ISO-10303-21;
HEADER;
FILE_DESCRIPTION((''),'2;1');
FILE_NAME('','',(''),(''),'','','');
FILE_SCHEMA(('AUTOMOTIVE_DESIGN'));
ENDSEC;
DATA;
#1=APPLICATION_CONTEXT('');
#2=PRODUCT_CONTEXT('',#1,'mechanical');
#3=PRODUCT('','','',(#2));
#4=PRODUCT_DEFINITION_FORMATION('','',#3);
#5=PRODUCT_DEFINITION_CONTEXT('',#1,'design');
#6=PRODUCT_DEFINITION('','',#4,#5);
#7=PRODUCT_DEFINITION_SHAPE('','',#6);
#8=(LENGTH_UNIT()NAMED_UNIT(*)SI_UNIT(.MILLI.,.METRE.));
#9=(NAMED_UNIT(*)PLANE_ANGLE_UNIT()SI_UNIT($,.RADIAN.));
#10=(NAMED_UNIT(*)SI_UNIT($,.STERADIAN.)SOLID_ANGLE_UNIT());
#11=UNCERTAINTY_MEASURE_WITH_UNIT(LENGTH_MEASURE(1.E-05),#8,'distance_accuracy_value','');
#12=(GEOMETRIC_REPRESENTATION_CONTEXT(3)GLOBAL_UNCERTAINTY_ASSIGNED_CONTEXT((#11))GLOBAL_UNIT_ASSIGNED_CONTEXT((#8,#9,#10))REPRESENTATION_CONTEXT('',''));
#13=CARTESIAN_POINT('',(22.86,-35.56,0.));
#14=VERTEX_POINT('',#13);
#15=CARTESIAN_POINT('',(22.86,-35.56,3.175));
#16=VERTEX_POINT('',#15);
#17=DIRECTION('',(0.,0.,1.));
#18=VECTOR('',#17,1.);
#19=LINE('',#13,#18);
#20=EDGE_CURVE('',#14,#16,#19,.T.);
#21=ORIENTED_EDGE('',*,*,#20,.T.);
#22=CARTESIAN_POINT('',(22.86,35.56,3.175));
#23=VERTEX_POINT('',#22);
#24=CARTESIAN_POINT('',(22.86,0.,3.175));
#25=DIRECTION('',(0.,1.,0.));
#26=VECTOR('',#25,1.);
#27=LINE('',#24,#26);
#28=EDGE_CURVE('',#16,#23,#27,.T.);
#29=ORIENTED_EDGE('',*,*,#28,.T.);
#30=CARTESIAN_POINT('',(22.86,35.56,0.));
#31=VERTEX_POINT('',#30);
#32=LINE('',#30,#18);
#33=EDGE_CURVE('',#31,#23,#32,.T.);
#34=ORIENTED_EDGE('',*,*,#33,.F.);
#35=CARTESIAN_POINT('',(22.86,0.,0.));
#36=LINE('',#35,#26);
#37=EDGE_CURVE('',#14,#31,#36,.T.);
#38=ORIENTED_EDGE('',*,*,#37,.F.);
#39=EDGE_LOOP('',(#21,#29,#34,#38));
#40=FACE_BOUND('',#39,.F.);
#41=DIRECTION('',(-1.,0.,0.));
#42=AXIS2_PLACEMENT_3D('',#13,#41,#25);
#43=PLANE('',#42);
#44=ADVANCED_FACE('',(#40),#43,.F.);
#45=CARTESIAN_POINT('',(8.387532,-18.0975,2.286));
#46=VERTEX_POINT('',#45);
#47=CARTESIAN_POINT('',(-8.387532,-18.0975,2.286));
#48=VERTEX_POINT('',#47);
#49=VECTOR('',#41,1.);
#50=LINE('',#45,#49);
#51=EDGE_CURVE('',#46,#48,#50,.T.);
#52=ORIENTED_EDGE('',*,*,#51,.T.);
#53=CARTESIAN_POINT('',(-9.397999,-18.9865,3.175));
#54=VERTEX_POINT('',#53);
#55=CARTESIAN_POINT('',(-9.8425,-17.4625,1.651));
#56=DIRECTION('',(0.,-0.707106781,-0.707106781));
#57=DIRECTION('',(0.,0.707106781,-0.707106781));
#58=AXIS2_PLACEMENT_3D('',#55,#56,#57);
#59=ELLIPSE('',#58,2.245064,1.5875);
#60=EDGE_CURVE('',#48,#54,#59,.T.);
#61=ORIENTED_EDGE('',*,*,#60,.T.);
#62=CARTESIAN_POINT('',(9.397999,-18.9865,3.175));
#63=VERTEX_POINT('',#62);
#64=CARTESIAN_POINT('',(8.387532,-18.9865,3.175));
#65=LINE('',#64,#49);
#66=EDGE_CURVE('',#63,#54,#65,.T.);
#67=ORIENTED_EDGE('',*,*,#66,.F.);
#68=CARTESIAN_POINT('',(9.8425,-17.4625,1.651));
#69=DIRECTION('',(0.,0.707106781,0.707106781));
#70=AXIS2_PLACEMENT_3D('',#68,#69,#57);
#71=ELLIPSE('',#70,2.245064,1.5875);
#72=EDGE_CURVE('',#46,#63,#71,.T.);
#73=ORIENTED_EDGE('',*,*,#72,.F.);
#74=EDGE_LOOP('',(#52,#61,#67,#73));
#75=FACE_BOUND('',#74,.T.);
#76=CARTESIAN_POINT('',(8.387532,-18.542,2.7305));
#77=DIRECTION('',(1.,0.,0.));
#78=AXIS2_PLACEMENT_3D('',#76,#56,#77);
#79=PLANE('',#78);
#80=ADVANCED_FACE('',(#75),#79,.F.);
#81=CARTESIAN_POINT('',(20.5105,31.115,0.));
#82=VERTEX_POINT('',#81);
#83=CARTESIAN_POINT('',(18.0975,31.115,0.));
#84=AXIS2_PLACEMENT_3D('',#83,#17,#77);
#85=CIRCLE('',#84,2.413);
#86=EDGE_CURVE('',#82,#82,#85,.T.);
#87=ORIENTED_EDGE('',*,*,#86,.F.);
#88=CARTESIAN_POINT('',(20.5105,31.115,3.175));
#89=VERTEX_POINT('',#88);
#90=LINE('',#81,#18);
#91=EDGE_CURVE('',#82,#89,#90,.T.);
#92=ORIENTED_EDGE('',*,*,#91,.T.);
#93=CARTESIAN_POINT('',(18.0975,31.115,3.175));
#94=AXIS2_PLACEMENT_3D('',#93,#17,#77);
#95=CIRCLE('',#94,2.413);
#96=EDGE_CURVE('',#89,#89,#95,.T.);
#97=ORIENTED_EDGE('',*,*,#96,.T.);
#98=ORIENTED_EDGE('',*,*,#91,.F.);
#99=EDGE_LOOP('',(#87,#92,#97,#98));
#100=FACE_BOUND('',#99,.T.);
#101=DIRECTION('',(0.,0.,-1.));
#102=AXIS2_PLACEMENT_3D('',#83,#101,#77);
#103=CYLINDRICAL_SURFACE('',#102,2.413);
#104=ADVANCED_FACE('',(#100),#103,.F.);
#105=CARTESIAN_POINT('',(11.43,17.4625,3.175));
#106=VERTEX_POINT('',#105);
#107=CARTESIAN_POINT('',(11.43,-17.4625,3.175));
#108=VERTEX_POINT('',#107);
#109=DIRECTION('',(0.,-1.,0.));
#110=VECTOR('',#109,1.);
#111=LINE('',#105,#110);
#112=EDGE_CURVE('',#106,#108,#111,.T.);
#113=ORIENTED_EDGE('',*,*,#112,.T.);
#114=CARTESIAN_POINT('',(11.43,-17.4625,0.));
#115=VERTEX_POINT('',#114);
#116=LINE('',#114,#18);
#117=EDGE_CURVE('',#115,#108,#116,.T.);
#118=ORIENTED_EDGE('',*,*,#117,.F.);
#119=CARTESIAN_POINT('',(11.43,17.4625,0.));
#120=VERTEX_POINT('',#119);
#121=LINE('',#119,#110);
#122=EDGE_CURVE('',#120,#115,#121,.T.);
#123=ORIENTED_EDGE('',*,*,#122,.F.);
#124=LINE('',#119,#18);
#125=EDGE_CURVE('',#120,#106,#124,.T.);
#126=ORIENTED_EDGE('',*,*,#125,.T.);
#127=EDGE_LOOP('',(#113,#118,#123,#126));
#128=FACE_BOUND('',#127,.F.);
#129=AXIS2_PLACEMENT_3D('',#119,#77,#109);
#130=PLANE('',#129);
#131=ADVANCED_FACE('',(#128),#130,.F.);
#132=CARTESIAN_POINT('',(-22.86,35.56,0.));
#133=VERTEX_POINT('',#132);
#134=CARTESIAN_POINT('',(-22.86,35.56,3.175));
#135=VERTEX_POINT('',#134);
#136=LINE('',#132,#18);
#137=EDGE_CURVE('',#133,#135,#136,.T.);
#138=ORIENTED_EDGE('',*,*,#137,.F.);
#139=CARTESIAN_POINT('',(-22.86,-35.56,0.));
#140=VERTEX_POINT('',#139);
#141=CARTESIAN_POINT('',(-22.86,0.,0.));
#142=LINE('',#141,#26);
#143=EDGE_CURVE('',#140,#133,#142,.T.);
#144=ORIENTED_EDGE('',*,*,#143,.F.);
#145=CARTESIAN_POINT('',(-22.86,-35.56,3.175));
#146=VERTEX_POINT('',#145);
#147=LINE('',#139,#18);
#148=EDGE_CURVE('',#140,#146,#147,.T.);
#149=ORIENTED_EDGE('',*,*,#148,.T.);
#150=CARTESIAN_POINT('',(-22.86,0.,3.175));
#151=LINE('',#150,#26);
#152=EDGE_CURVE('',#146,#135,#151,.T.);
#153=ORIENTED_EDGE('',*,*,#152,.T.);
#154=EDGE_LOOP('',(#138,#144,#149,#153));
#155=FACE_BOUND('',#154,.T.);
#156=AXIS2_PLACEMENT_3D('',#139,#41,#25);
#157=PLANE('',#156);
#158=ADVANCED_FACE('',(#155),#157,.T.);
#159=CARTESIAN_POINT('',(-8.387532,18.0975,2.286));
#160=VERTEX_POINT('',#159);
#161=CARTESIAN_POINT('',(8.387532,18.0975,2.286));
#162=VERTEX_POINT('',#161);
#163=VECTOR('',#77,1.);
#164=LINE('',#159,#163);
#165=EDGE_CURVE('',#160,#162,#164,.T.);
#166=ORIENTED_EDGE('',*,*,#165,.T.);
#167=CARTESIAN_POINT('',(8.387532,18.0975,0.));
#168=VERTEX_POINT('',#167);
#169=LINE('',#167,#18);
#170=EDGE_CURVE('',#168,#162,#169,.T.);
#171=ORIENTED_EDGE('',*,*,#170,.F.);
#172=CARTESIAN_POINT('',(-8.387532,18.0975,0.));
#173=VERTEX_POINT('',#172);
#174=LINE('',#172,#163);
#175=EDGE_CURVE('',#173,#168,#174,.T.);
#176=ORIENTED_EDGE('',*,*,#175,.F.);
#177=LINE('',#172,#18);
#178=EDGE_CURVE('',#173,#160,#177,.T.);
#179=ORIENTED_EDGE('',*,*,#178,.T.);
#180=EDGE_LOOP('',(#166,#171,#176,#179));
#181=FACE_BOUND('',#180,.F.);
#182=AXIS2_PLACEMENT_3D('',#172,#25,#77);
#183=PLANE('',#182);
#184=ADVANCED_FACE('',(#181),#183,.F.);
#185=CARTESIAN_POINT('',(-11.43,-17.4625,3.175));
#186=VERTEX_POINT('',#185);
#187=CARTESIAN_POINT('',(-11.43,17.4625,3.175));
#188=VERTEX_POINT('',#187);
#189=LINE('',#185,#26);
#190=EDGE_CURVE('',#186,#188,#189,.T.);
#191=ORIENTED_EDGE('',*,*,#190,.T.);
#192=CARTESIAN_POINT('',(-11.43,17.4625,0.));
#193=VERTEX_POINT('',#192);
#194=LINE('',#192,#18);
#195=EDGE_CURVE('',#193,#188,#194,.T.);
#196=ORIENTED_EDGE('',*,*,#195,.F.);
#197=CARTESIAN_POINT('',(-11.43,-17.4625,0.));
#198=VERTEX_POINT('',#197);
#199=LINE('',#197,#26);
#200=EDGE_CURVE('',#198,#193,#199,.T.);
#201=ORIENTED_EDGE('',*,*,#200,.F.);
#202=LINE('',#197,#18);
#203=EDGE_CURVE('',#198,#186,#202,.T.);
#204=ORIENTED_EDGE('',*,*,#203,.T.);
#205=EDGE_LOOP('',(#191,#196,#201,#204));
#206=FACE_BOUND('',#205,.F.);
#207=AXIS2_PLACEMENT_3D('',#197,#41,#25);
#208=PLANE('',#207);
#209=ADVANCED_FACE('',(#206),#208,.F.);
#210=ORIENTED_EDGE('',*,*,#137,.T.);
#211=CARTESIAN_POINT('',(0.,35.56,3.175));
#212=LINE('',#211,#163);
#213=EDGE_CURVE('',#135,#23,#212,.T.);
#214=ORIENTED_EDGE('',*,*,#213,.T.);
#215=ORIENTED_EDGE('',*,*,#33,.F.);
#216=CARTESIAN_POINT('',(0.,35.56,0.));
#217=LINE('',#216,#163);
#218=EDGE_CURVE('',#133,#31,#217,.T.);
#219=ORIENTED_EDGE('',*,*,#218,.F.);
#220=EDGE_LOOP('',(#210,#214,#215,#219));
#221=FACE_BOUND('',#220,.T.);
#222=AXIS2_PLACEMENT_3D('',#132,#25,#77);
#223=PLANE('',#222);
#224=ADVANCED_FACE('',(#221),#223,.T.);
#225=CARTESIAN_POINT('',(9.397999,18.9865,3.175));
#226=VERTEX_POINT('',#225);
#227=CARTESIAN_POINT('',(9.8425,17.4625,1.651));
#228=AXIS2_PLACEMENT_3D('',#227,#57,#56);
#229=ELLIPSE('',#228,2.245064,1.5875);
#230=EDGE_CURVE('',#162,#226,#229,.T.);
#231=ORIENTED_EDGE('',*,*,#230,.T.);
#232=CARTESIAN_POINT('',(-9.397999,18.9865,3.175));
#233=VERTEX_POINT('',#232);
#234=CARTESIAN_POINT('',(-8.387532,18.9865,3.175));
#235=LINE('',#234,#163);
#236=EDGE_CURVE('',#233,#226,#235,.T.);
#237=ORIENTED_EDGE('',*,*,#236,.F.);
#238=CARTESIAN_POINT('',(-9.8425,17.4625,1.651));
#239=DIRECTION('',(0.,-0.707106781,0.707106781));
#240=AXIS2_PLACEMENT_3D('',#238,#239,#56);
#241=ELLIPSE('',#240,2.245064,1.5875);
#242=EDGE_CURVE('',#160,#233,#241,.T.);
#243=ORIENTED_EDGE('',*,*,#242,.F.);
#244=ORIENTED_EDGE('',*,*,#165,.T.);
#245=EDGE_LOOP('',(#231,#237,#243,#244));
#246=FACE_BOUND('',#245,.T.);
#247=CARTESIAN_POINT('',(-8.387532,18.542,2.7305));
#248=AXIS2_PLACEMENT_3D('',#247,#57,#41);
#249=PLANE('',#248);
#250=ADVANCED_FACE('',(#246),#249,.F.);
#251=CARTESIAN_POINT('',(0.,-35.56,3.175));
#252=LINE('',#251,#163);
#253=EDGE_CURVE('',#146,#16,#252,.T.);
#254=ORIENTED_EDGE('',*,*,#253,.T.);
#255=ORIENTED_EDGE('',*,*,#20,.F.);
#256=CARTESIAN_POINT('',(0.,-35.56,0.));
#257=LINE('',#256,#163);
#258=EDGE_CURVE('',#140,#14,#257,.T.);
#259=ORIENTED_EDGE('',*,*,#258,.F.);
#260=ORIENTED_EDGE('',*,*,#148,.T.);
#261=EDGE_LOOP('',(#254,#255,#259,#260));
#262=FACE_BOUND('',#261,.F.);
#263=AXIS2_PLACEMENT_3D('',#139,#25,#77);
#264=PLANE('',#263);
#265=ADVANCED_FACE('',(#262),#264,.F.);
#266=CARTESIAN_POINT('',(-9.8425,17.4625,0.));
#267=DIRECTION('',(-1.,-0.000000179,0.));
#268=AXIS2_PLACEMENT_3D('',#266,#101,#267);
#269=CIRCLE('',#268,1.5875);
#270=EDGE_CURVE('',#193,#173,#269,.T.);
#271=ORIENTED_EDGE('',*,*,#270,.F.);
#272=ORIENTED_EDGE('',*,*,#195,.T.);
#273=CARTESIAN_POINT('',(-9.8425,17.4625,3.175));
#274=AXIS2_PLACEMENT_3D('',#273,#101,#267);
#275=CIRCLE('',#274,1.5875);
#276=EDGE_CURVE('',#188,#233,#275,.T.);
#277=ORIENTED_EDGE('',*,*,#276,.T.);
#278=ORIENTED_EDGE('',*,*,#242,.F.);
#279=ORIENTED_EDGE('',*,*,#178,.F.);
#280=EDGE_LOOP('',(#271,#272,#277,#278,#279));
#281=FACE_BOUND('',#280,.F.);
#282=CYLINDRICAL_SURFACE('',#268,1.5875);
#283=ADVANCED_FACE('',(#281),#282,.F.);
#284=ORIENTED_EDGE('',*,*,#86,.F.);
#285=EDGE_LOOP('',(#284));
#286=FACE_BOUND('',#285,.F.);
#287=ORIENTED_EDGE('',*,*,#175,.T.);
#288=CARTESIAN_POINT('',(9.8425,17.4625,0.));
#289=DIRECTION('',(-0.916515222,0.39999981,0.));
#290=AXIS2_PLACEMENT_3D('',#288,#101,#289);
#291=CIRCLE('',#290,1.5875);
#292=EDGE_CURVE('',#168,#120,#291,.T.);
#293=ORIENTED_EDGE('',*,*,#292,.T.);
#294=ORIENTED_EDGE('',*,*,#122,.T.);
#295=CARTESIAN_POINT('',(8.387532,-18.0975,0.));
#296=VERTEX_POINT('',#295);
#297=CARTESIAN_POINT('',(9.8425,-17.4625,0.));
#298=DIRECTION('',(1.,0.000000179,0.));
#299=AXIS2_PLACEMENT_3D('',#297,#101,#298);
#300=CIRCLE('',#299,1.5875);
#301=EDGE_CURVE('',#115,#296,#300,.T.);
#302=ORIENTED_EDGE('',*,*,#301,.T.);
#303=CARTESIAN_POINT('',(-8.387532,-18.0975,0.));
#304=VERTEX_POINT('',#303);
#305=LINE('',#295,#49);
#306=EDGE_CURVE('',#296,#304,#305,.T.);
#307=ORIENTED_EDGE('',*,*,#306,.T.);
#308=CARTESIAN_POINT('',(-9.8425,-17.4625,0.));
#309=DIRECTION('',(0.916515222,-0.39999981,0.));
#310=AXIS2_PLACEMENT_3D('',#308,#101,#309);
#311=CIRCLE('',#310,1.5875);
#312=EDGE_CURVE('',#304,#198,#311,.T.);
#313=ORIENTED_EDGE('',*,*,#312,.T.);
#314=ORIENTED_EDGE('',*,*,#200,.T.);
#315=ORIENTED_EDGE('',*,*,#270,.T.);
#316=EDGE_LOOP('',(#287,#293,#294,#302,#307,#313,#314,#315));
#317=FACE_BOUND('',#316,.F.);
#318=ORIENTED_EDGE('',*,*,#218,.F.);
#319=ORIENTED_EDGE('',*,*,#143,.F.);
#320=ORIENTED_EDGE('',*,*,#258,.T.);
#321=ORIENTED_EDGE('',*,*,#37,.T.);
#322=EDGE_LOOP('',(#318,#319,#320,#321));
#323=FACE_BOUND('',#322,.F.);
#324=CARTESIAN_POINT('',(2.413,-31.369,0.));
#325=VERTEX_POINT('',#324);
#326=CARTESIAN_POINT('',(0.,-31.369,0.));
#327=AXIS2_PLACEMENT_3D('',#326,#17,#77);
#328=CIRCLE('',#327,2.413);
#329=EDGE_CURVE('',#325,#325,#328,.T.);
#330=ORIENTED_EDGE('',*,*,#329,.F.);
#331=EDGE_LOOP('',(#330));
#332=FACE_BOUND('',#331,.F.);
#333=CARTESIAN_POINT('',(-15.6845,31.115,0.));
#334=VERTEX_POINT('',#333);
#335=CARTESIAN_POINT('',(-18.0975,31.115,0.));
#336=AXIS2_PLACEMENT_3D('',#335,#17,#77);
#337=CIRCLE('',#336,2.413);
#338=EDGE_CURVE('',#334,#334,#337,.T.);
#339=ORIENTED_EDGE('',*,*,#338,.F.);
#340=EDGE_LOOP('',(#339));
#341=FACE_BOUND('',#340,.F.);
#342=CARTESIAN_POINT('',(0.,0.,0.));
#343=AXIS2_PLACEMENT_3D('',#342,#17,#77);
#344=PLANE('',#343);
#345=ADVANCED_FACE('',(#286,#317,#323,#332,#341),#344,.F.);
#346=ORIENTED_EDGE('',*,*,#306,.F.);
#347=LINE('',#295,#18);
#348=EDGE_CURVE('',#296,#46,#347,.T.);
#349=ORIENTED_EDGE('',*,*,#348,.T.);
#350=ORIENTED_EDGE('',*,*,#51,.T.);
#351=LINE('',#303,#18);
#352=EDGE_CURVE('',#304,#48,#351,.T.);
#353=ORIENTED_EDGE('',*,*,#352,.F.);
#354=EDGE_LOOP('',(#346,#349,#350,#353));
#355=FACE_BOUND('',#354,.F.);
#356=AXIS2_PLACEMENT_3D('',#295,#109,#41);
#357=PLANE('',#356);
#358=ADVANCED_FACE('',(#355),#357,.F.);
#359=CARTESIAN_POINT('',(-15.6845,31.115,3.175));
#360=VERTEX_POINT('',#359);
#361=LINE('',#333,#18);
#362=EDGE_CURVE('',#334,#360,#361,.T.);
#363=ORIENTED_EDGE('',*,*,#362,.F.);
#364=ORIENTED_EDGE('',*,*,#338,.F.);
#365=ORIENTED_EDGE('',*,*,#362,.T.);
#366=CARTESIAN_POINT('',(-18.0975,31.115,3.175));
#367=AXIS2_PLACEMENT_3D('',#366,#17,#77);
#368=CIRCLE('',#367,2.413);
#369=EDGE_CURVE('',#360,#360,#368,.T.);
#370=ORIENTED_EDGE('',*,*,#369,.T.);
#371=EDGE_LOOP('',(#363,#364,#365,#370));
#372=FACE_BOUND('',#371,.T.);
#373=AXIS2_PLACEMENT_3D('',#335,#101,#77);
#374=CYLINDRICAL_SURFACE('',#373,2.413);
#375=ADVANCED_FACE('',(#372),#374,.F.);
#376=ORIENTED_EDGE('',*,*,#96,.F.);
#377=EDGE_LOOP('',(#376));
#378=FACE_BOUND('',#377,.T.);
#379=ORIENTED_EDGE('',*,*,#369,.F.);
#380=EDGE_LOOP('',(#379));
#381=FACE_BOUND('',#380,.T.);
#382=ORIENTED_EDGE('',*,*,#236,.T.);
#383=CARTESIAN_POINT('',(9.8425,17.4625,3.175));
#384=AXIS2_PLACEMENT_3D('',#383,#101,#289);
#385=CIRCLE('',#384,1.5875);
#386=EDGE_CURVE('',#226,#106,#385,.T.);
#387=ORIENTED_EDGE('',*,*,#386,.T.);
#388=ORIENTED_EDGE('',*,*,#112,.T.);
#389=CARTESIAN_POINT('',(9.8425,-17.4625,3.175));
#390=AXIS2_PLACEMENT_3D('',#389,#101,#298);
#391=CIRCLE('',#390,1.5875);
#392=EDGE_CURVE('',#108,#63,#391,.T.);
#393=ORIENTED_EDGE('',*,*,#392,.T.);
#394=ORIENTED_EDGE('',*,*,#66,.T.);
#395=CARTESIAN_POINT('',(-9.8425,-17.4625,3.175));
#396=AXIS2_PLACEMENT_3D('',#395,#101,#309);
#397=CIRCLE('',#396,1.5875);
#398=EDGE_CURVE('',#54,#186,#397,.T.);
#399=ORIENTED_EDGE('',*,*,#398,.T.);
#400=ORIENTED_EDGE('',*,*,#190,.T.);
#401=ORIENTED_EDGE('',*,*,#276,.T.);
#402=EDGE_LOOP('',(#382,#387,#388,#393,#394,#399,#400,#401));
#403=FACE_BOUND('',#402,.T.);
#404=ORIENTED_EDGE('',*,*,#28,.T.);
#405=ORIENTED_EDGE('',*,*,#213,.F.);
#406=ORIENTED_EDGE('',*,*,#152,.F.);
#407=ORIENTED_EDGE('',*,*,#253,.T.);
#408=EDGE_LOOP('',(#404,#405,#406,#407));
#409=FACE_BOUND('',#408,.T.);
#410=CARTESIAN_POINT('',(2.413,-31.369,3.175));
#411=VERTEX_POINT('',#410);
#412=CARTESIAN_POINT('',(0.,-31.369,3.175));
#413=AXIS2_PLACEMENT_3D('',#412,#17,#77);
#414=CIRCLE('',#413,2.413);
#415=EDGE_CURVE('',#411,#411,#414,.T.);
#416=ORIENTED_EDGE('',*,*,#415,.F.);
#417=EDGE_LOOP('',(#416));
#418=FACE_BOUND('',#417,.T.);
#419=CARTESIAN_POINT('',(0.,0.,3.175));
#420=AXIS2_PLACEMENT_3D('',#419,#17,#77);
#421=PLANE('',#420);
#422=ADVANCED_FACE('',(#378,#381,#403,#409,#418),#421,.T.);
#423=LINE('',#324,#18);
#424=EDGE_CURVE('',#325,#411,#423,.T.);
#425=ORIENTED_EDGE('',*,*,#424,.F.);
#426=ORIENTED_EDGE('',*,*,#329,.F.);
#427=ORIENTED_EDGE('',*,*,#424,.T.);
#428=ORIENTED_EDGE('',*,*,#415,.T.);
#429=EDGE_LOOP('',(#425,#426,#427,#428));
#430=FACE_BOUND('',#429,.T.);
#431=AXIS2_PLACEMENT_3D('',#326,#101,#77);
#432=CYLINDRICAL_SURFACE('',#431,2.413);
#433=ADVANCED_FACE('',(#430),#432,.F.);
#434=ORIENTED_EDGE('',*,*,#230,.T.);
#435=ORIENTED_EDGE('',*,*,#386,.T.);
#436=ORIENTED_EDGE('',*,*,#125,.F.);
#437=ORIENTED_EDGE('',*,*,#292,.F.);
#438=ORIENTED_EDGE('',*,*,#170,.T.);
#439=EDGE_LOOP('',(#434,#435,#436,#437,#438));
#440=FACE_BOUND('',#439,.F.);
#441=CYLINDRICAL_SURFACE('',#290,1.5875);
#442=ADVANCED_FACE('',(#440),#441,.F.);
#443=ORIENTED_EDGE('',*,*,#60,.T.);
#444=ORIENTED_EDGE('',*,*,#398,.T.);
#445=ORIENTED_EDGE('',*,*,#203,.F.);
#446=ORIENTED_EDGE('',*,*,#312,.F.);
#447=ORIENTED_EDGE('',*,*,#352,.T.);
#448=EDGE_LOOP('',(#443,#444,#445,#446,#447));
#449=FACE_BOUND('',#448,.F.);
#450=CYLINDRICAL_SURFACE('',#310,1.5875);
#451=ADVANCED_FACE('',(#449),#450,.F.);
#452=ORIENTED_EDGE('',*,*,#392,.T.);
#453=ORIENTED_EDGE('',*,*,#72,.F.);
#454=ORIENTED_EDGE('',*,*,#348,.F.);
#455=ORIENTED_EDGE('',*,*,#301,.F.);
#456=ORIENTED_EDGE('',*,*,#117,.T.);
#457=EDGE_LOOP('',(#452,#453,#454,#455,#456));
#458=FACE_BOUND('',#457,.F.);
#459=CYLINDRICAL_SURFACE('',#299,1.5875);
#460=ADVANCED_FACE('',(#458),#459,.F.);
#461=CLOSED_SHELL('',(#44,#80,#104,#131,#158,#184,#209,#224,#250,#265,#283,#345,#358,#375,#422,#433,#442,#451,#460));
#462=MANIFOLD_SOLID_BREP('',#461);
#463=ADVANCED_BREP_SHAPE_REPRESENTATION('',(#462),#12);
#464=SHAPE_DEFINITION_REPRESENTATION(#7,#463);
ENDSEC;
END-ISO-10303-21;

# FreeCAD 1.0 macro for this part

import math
import FreeCAD as App
import Part
import Sketcher

V = App.Vector
Q = App.Units.Quantity


def edges_at(feature, points):
    """Names of the edges that pass closest to the given points."""
    edges = feature.Shape.Edges
    near = lambda p: min(range(len(edges)), key=lambda i: edges[i].distToShape(Part.Vertex(*p))[0])
    return sorted({f"Edge{near(p) + 1}" for p in points})


def add_polygon(sketch, points):
    """Adds a closed chain of lines whose ends are joined by coincident constraints."""
    first, n = sketch.GeometryCount, len(points)
    for a, b in zip(points, points[1:] + points[:1]):
        sketch.addGeometry(Part.LineSegment(App.Vector(*a, 0), App.Vector(*b, 0)), False)
    for i in range(n):
        sketch.addConstraint(Sketcher.Constraint("Coincident", first + i, 2, first + (i + 1) % n, 1))

doc = App.newDocument("Part")
body = doc.addObject("PartDesign::Body", "Body")

sketch1 = body.newObject("Sketcher::SketchObject", "Sketch")
sketch1.AttachmentSupport = (doc.getObject("XY_Plane"), [""])
sketch1.MapMode = "FlatFace"
add_polygon(sketch1, [(-22.86, 35.56), (-22.86, -35.56), (22.86, -35.56), (22.86, 35.56)])
sketch1.addGeometry(Part.Circle(V(0, -31.369, 0), V(0, 0, 1), 2.413), False)
sketch1.addGeometry(Part.Circle(V(-18.0975, 31.115, 0), V(0, 0, 1), 2.413), False)
sketch1.addGeometry(Part.LineSegment(V(11.43, 17.4625, 0), V(11.43, -17.4625, 0)), False)
sketch1.addGeometry(Part.ArcOfCircle(Part.Circle(V(9.8425, -17.4625, 0), V(0, 0, 1), 1.5875), math.radians(-156.421833), math.radians(0.00001)), False)
sketch1.addGeometry(Part.LineSegment(V(8.387532, -18.0975, 0), V(-8.387532, -18.0975, 0)), False)
sketch1.addGeometry(Part.ArcOfCircle(Part.Circle(V(-9.8425, -17.4625, 0), V(0, 0, 1), 1.5875), math.radians(179.99999), math.radians(336.421833)), False)
sketch1.addGeometry(Part.LineSegment(V(-11.43, -17.4625, 0), V(-11.43, 17.4625, 0)), False)
sketch1.addGeometry(Part.ArcOfCircle(Part.Circle(V(-9.8425, 17.4625, 0), V(0, 0, 1), 1.5875), math.radians(23.578167), math.radians(180.00001)), False)
sketch1.addGeometry(Part.LineSegment(V(-8.387532, 18.0975, 0), V(8.387532, 18.0975, 0)), False)
sketch1.addGeometry(Part.ArcOfCircle(Part.Circle(V(9.8425, 17.4625, 0), V(0, 0, 1), 1.5875), math.radians(-0.00001), math.radians(156.421833)), False)
sketch1.addGeometry(Part.Circle(V(18.0975, 31.115, 0), V(0, 0, 1), 2.413), False)
sketch1.addConstraint([
    Sketcher.Constraint("Tangent", 6, 2, 7, 2),
    Sketcher.Constraint("Coincident", 7, 1, 8, 1),
    Sketcher.Constraint("Coincident", 8, 2, 9, 2),
    Sketcher.Constraint("Tangent", 9, 1, 10, 1),
    Sketcher.Constraint("Tangent", 10, 2, 11, 2),
    Sketcher.Constraint("Coincident", 11, 1, 12, 1),
    Sketcher.Constraint("Coincident", 12, 2, 13, 2),
    Sketcher.Constraint("Tangent", 13, 1, 6, 1),
    Sketcher.Constraint("Vertical", 0),
    Sketcher.Constraint("Horizontal", 1),
    Sketcher.Constraint("Vertical", 2),
    Sketcher.Constraint("Horizontal", 3),
    Sketcher.Constraint("Vertical", 6),
    Sketcher.Constraint("Horizontal", 8),
    Sketcher.Constraint("Vertical", 10),
    Sketcher.Constraint("Horizontal", 12),
    Sketcher.Constraint("Equal", 4, 5),
    Sketcher.Constraint("Equal", 7, 9),
    Sketcher.Constraint("Equal", 9, 11),
    Sketcher.Constraint("Equal", 11, 13),
    Sketcher.Constraint("Equal", 5, 14),
    Sketcher.Constraint("Symmetric", 7, 3, 11, 3, -1, 1),
    Sketcher.Constraint("Symmetric", 0, 2, 2, 2, -1, 1),
    Sketcher.Constraint("Symmetric", 8, 2, 12, 2, -1, 1),
    Sketcher.Constraint("Symmetric", 5, 3, 14, 3, -2),
    Sketcher.Constraint("PointOnObject", 4, 3, -2),
    Sketcher.Constraint("Horizontal", 7, 3, 9, 3),
    Sketcher.Constraint("Diameter", 4, Q("0.19 in")),
    Sketcher.Constraint("DistanceX", 1, 1, 1, 2, Q("1.8 in")),
    Sketcher.Constraint("DistanceY", 0, 2, 0, 1, Q("2.8 in")),
    Sketcher.Constraint("Radius", 7, Q("0.0625 in")),
    Sketcher.Constraint("DistanceX", 5, 3, 7, 3, Q("1.1 in")),
    Sketcher.Constraint("DistanceY", 6, 2, 6, 1, Q("1.375 in")),
    Sketcher.Constraint("DistanceX", -1, 1, 6, 2, Q("0.45 in")),
    Sketcher.Constraint("DistanceY", 4, 3, 5, 3, Q("2.46 in")),
    Sketcher.Constraint("DistanceY", 4, 3, -1, 1, Q("1.235 in")),
    Sketcher.Constraint("DistanceY", 7, 1, 7, 3, Q("0.025 in")),
])
pad1 = body.newObject("PartDesign::Pad", "Pad")
pad1.Profile = sketch1
pad1.Length = Q("0.125 in")
doc.recompute()

chamfer = body.newObject("PartDesign::Chamfer", "Chamfer")
chamfer.Base = (pad1, edges_at(pad1, [(0, 18.098, 3.175), (0, -18.098, 3.175)]))
chamfer.Size = Q("0.035 in")

doc.recompute()
